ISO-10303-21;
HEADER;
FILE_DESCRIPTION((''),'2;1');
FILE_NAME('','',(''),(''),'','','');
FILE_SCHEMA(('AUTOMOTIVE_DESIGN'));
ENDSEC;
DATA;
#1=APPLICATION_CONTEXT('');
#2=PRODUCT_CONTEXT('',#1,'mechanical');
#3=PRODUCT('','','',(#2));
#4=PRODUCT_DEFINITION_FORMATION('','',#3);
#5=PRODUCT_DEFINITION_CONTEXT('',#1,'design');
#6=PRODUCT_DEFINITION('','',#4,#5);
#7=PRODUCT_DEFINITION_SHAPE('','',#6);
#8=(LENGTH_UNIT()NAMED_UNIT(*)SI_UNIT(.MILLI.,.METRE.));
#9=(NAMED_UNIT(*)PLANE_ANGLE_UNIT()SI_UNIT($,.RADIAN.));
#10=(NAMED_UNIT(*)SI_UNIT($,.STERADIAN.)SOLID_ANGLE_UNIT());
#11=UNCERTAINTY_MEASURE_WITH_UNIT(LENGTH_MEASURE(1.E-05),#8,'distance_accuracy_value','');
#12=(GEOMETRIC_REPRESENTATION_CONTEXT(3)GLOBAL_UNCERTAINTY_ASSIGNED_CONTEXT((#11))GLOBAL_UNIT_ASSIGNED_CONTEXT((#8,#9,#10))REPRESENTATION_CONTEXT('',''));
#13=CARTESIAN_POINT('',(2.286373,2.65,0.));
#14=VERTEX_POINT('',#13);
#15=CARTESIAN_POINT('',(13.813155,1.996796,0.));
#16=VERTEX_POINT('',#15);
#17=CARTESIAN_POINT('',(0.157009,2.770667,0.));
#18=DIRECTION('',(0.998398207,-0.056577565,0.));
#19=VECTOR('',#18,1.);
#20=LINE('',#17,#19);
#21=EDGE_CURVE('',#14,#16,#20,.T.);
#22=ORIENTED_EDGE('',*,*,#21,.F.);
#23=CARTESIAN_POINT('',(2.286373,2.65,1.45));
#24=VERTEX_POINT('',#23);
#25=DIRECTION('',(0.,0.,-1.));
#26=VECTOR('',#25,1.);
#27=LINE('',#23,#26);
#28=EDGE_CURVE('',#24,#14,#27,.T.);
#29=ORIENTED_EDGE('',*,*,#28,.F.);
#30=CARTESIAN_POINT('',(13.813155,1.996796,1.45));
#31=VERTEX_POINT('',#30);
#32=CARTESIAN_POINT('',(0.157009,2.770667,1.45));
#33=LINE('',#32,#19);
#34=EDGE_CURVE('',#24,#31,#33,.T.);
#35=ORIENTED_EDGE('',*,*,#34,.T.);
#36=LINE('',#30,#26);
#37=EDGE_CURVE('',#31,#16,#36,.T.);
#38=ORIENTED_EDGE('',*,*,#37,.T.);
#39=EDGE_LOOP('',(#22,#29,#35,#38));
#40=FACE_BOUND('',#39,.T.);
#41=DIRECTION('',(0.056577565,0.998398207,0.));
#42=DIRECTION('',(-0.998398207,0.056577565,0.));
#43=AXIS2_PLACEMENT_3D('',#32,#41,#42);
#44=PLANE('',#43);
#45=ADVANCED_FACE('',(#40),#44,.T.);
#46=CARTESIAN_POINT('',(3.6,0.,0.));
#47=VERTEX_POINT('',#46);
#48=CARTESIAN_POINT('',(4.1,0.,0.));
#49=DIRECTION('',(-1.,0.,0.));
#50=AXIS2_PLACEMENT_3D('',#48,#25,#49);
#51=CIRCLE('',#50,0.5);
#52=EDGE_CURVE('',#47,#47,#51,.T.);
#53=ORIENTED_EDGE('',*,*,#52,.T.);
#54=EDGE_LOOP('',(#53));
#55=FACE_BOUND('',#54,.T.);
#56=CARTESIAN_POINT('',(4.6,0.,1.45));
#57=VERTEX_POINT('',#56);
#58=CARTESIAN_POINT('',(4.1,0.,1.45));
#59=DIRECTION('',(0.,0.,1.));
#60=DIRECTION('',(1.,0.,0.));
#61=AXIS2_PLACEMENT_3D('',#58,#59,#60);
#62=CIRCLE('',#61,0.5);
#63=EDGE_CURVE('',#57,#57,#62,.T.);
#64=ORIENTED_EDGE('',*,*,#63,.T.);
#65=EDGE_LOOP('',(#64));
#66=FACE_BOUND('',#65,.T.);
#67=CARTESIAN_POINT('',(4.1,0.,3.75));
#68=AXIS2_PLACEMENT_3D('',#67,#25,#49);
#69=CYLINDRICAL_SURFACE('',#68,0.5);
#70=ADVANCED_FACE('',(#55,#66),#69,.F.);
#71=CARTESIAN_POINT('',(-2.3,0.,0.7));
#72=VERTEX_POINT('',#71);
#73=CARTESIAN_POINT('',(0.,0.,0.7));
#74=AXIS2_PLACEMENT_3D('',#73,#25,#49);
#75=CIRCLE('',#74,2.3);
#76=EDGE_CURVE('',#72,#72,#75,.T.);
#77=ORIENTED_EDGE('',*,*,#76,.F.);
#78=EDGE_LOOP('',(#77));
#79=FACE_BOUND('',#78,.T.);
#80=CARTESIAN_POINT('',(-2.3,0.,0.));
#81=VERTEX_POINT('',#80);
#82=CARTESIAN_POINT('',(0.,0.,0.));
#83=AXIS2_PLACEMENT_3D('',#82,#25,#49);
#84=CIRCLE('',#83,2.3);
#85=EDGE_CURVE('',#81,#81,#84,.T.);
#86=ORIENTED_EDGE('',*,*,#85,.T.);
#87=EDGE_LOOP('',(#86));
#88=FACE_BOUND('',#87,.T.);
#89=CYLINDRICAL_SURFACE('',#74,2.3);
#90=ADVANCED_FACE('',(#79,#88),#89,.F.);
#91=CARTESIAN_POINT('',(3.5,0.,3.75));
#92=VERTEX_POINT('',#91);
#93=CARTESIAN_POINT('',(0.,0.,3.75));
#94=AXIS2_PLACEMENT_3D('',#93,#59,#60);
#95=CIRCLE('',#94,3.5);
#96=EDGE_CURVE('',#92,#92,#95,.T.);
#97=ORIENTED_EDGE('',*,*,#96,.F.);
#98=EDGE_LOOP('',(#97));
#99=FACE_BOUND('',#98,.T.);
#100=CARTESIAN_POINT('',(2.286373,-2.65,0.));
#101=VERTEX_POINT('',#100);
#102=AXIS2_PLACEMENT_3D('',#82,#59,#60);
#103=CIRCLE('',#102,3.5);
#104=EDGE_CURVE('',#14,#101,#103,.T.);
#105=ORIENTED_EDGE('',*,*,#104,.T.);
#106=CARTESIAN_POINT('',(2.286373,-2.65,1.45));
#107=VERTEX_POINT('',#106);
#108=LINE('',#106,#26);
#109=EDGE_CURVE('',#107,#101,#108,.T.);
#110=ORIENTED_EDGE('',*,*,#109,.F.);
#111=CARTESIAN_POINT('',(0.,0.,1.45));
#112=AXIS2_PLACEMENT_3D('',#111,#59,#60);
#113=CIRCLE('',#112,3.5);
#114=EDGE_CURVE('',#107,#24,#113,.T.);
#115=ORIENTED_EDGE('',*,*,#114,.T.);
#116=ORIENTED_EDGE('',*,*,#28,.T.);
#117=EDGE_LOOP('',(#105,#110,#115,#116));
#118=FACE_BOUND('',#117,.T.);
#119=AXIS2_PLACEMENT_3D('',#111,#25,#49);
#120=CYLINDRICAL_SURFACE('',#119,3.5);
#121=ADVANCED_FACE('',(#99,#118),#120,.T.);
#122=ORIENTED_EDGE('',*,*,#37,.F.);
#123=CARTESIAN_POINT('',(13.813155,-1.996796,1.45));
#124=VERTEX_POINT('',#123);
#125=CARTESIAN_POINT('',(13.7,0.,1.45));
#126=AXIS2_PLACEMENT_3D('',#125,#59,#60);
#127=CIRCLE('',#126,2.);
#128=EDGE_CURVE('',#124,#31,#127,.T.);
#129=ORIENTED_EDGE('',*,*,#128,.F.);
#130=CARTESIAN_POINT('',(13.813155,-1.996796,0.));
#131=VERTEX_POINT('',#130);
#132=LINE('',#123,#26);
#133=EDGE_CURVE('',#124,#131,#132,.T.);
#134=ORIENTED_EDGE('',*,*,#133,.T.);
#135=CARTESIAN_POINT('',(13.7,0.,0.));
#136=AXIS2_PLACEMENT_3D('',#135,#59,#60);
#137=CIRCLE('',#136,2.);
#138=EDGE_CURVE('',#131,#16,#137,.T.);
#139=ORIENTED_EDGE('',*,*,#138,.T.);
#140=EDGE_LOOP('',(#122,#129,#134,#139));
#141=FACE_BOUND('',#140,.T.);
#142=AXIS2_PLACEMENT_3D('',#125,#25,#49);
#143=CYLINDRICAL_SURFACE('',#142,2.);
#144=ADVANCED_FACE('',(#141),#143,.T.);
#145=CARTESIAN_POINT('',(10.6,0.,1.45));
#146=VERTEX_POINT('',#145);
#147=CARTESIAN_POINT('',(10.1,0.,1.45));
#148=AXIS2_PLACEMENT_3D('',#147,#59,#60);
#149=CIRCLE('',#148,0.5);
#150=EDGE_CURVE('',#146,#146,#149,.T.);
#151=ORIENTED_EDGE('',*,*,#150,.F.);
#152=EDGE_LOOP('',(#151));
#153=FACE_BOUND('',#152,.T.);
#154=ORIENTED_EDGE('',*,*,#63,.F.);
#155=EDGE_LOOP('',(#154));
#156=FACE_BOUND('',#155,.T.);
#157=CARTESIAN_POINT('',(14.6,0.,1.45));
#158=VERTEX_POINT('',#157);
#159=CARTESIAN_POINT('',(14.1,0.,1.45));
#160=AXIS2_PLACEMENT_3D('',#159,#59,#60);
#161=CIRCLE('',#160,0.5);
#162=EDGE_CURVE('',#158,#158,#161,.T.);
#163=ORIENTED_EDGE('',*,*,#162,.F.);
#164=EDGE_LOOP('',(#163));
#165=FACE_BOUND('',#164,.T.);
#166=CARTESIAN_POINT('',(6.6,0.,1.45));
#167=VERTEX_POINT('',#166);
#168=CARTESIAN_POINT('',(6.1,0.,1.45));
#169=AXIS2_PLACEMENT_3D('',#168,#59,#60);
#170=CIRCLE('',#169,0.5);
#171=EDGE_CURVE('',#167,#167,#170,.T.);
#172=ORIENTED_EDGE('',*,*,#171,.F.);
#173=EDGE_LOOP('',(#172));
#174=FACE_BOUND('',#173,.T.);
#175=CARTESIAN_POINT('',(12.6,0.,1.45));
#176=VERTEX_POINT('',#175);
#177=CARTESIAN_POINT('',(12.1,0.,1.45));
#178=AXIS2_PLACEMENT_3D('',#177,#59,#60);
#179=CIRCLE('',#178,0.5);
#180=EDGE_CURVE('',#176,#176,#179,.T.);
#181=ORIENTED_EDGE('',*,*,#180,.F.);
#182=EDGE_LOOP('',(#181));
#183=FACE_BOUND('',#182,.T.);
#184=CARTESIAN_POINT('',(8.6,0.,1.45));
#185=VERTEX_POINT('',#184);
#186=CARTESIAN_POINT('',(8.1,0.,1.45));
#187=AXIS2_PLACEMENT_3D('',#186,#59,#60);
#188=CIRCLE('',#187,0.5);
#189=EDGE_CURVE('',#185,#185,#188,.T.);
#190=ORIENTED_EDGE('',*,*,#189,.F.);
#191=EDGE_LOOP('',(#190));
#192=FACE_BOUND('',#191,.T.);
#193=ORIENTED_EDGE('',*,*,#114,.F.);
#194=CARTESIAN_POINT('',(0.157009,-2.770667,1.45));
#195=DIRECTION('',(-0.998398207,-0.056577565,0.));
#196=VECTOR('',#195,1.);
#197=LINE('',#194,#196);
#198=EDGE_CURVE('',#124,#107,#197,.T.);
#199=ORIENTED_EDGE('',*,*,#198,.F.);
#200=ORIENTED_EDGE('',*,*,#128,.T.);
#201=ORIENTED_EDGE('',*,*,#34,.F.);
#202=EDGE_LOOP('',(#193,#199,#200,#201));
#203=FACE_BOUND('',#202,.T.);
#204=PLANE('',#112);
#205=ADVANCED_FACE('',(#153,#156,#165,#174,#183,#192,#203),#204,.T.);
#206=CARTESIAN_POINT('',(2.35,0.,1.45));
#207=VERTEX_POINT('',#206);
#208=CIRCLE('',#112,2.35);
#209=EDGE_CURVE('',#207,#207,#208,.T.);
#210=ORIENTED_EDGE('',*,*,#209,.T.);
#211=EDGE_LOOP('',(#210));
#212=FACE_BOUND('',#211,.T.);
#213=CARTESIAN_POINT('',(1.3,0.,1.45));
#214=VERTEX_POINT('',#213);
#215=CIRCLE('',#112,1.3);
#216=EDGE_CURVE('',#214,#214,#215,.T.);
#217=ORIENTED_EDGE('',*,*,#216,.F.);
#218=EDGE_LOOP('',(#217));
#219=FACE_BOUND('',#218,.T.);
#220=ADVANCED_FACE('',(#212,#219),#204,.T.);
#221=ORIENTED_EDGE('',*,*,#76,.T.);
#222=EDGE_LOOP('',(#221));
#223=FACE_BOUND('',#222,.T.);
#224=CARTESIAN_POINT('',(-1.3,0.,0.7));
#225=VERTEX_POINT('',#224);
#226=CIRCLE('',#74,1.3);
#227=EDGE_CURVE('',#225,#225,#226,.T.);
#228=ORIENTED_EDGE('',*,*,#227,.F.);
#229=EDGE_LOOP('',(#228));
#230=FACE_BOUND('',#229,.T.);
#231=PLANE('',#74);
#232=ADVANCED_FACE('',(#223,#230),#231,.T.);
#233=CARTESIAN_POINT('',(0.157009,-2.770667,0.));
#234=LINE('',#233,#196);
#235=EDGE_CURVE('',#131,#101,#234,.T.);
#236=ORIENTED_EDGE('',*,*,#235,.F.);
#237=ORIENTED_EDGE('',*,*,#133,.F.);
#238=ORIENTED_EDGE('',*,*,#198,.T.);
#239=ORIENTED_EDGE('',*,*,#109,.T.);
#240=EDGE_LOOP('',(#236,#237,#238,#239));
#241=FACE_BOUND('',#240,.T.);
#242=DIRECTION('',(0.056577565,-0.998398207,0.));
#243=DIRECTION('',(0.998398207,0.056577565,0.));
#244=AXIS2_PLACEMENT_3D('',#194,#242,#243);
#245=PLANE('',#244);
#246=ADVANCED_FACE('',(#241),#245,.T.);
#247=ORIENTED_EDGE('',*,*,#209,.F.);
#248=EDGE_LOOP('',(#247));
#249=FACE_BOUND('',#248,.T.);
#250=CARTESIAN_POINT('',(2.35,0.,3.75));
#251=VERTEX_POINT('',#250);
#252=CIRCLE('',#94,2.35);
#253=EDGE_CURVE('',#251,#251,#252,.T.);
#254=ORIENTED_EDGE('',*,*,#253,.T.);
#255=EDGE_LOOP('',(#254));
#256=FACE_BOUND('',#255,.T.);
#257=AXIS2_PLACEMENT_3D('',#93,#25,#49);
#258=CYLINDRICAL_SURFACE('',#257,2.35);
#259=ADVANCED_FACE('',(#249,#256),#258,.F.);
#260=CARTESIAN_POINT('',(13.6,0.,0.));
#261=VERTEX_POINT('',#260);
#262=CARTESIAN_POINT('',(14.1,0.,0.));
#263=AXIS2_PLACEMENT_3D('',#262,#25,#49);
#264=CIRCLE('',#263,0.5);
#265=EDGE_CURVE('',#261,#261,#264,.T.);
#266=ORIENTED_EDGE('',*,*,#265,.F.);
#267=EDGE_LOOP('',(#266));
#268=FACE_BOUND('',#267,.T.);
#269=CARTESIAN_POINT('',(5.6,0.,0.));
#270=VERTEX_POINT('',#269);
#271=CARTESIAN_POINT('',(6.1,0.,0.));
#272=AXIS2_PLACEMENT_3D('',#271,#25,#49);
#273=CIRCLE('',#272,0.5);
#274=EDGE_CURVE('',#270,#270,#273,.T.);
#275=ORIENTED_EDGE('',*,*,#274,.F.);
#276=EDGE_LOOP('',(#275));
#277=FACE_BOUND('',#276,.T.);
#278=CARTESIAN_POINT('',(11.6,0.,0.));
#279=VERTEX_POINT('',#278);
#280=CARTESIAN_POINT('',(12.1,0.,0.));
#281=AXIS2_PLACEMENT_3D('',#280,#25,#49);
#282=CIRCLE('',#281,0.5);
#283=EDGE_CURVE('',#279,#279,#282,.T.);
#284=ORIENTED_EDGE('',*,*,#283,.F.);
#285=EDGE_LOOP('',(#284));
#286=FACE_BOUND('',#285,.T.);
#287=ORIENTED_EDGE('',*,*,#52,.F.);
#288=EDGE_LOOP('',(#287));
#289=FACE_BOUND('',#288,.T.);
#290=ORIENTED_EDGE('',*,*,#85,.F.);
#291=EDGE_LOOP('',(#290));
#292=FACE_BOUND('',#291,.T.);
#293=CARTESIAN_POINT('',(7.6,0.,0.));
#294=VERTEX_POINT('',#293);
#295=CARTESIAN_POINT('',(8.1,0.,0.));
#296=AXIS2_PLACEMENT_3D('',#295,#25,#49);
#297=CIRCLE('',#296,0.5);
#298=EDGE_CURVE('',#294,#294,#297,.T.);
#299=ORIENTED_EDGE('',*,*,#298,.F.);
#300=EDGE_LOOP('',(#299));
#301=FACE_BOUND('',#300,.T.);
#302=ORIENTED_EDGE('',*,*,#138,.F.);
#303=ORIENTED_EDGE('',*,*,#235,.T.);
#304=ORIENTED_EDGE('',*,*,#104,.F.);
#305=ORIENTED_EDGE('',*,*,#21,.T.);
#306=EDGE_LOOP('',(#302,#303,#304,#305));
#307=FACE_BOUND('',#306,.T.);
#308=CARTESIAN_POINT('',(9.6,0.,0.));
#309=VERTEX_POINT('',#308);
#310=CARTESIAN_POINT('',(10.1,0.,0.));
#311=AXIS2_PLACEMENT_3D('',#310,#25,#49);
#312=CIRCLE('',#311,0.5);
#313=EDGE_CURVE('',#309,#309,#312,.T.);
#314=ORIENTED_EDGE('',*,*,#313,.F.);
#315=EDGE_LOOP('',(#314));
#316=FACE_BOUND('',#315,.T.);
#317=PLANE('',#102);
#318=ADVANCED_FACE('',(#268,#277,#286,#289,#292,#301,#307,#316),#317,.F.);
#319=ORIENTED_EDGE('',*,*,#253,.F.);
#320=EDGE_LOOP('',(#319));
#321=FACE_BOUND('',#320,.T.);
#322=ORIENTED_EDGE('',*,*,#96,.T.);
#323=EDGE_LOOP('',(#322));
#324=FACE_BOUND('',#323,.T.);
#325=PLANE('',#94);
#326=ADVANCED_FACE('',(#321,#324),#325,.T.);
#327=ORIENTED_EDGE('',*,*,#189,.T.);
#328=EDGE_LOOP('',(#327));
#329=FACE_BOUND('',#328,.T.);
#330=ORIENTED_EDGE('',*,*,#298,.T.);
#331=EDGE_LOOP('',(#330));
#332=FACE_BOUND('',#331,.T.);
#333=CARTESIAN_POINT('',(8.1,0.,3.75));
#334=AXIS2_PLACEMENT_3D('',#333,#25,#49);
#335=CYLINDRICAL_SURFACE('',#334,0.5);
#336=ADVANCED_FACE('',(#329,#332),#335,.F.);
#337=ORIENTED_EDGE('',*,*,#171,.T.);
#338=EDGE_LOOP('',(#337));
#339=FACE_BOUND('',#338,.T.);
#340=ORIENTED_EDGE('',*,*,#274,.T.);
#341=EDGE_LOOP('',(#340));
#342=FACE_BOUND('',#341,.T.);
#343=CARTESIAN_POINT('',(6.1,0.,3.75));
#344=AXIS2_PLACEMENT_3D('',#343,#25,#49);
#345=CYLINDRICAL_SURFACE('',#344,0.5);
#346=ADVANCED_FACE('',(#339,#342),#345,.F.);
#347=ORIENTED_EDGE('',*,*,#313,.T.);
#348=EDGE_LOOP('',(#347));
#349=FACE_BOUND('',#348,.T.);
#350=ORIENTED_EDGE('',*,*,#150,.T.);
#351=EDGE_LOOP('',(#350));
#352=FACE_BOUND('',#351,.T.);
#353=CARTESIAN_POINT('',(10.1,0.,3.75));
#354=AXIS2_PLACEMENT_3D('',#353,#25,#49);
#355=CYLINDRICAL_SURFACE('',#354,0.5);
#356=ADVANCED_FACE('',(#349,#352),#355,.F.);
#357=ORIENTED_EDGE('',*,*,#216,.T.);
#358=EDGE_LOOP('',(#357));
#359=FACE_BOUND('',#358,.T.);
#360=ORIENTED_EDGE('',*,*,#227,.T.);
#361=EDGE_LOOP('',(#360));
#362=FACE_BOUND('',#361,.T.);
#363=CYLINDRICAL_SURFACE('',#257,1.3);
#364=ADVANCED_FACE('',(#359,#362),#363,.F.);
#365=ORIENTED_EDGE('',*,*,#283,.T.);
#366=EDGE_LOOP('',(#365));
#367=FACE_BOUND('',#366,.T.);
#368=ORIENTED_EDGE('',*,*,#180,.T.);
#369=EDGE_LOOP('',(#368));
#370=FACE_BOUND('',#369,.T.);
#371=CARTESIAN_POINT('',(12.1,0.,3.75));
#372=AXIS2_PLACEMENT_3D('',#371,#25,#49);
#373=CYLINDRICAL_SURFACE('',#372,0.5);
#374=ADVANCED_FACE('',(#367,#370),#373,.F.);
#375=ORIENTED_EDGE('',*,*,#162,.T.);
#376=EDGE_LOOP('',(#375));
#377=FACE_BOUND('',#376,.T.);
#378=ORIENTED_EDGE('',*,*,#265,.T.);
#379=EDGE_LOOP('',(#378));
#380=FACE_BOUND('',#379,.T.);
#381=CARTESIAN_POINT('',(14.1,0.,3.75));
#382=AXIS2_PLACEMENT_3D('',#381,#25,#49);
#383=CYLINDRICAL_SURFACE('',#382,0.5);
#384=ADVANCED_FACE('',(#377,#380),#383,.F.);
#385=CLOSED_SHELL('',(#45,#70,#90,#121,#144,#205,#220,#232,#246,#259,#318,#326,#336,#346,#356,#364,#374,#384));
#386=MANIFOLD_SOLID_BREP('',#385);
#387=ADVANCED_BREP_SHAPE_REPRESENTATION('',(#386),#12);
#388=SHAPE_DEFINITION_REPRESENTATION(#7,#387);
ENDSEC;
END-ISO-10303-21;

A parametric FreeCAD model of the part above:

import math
import FreeCAD as App
import Part
import Sketcher
from FreeCAD import Vector

doc = App.newDocument("Part")
body = doc.addObject("PartDesign::Body", "Body")

# Sketch on XY plane
sketch1 = doc.addObject("Sketcher::SketchObject", "Sketch")
body.addObject(sketch1)
sketch1.AttachmentSupport = (doc.XY_Plane, [""])
sketch1.MapMode = "FlatFace"
sketch1.addGeometry(Part.ArcOfCircle(Part.Circle(Vector(0, 0, 0), Vector(0, 0, 1), 3.5), math.radians(49), math.radians(124)), False)
sketch1.addGeometry(Part.ArcOfCircle(Part.Circle(Vector(0, 0, 0), Vector(0, 0, 1), 3.5), math.radians(124), math.radians(236)), False)
sketch1.addGeometry(Part.ArcOfCircle(Part.Circle(Vector(0, 0, 0), Vector(0, 0, 1), 3.5), math.radians(-124), math.radians(-49)), False)
sketch1.addGeometry(Part.LineSegment(Vector(2.3, -2.6, 0), Vector(13.8, -2, 0)), False)
sketch1.addGeometry(Part.ArcOfCircle(Part.Circle(Vector(13.7, 0, 0), Vector(0, 0, 1), 2), math.radians(-87), math.radians(87)), False)
sketch1.addGeometry(Part.LineSegment(Vector(13.8, 2, 0), Vector(2.3, 2.6, 0)), False)
sketch1.addConstraint(Sketcher.Constraint("Tangent", 0, 2, 1, 1))
sketch1.addConstraint(Sketcher.Constraint("Tangent", 1, 2, 2, 1))
sketch1.addConstraint(Sketcher.Constraint("Coincident", 2, 2, 3, 1))
sketch1.addConstraint(Sketcher.Constraint("Tangent", 3, 2, 4, 1))
sketch1.addConstraint(Sketcher.Constraint("Tangent", 4, 2, 5, 1))
sketch1.addConstraint(Sketcher.Constraint("Coincident", 5, 2, 0, 1))
sketch1.addConstraint(Sketcher.Constraint("Coincident", 0, 3, -1, 1))
sketch1.addConstraint(Sketcher.Constraint("Coincident", 2, 3, -1, 1))
sketch1.addConstraint(Sketcher.Constraint("Symmetric", 3, 2, 4, 2, -1))
sketch1.addConstraint(Sketcher.Constraint("Vertical", 0, 2, 1, 2))
sketch1.addConstraint(Sketcher.Constraint("Radius", 4, 2.0))
sketch1.addConstraint(Sketcher.Constraint("Radius", 0, 3.5))
sketch1.addConstraint(Sketcher.Constraint("DistanceX", -1, 1, 4, 3, 13.7))
sketch1.addConstraint(Sketcher.Constraint("DistanceY", 2, 2, 5, 2, 5.3))
sketch1.addConstraint(Sketcher.Constraint("DistanceY", 1, 2, 0, 2, 5.78267))
pad1 = doc.addObject("PartDesign::Pad", "Pad")
body.addObject(pad1)
pad1.Profile = sketch1
pad1.Length = 1.45

# Sketch on XY plane
sketch2 = doc.addObject("Sketcher::SketchObject", "Sketch001")
body.addObject(sketch2)
sketch2.AttachmentSupport = (doc.XY_Plane, [""])
sketch2.MapMode = "FlatFace"
sketch2.AttachmentOffset = App.Placement(Vector(0, 0, 1.45), App.Rotation())
sketch2.addGeometry(Part.Circle(Vector(0, 0, 0), Vector(0, 0, 1), 3.5), False)
sketch2.addGeometry(Part.Circle(Vector(0, 0, 0), Vector(0, 0, 1), 2.4), False)
sketch2.addConstraint(Sketcher.Constraint("Coincident", 0, 3, -1, 1))
sketch2.addConstraint(Sketcher.Constraint("Coincident", 1, 3, -1, 1))
sketch2.addConstraint(Sketcher.Constraint("Diameter", 0, 7.0))
sketch2.addConstraint(Sketcher.Constraint("Diameter", 1, 4.7))
pad2 = doc.addObject("PartDesign::Pad", "Pad001")
body.addObject(pad2)
pad2.Profile = sketch2
pad2.Length = 2.3

# Sketch on XY plane
sketch3 = doc.addObject("Sketcher::SketchObject", "Sketch002")
body.addObject(sketch3)
sketch3.AttachmentSupport = (doc.XY_Plane, [""])
sketch3.MapMode = "FlatFace"
sketch3.addGeometry(Part.Circle(Vector(0, 0, 0), Vector(0, 0, 1), 2.3), False)
sketch3.addConstraint(Sketcher.Constraint("Coincident", 0, 3, -1, 1))
sketch3.addConstraint(Sketcher.Constraint("Diameter", 0, 4.6))
pocket1 = doc.addObject("PartDesign::Pocket", "Pocket")
body.addObject(pocket1)
pocket1.Profile = sketch3
pocket1.Length = 0.7
pocket1.Reversed = True

# Sketch on XY plane
sketch4 = doc.addObject("Sketcher::SketchObject", "Sketch003")
body.addObject(sketch4)
sketch4.AttachmentSupport = (doc.XY_Plane, [""])
sketch4.MapMode = "FlatFace"
sketch4.AttachmentOffset = App.Placement(Vector(0, 0, 0.7), App.Rotation())
sketch4.addGeometry(Part.Circle(Vector(0, 0, 0), Vector(0, 0, 1), 1.3), False)
sketch4.addConstraint(Sketcher.Constraint("Coincident", 0, 3, -1, 1))
sketch4.addConstraint(Sketcher.Constraint("Diameter", 0, 2.6))
pocket2 = doc.addObject("PartDesign::Pocket", "Pocket001")
body.addObject(pocket2)
pocket2.Profile = sketch4
pocket2.Type = "ThroughAll"
pocket2.Reversed = True

# Sketch on XY plane
sketch5 = doc.addObject("Sketcher::SketchObject", "Sketch004")
body.addObject(sketch5)
sketch5.AttachmentSupport = (doc.XY_Plane, [""])
sketch5.MapMode = "FlatFace"
sketch5.addGeometry(Part.Circle(Vector(14.1, 0, 0), Vector(0, 0, 1), 0.5), False)
sketch5.addConstraint(Sketcher.Constraint("PointOnObject", 0, 3, -1))
sketch5.addConstraint(Sketcher.Constraint("Diameter", 0, 1.0))
sketch5.addConstraint(Sketcher.Constraint("DistanceX", -1, 1, 0, 3, 14.1))
pocket3 = doc.addObject("PartDesign::Pocket", "Pocket002")
body.addObject(pocket3)
pocket3.Profile = sketch5
pocket3.Type = "ThroughAll"
pocket3.Reversed = True
doc.recompute()

linearpattern = doc.addObject("PartDesign::LinearPattern", "LinearPattern")
body.addObject(linearpattern)
linearpattern.Originals = [pocket3]
linearpattern.Direction = (doc.X_Axis, [""])
linearpattern.Mode = "offset"
linearpattern.Offset = 2
linearpattern.Occurrences = 6
linearpattern.Reversed = True
body.Tip = linearpattern

doc.recompute()
